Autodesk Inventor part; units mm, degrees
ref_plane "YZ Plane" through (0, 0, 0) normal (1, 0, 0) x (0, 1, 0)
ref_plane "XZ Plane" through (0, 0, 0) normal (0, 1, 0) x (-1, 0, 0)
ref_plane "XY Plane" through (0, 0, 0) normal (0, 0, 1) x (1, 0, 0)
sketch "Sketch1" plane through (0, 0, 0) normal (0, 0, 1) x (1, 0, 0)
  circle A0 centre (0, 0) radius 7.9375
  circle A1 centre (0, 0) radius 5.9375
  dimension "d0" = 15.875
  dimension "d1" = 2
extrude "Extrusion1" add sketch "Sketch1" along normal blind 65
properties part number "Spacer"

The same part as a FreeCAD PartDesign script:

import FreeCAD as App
import Part
import Sketcher
from FreeCAD import Vector
Q = App.Units.Quantity

doc = App.newDocument("Part")
body = doc.addObject("PartDesign::Body", "Body")

# Sketch on XY plane
sketch1 = body.newObject("Sketcher::SketchObject", "Sketch")
sketch1.AttachmentSupport = (doc.getObject("XY_Plane"), [""])
sketch1.MapMode = "FlatFace"
sketch1.addGeometry(Part.Circle(Vector(0, 0, 0), Vector(0, 0, 1), 8), False)
sketch1.addGeometry(Part.Circle(Vector(0, 0, 0), Vector(0, 0, 1), 6), False)
sketch1.addConstraint(Sketcher.Constraint("Coincident", 0, 3, -1, 1))
sketch1.addConstraint(Sketcher.Constraint("Coincident", 1, 3, -1, 1))
sketch1.addConstraint(Sketcher.Constraint("Diameter", 0, Q("15.875 mm")))
sketch1.addConstraint(Sketcher.Constraint("Diameter", 1, Q("11.875 mm")))
pad1 = body.newObject("PartDesign::Pad", "Pad")
pad1.Profile = sketch1
pad1.Length = 65

doc.recompute()
